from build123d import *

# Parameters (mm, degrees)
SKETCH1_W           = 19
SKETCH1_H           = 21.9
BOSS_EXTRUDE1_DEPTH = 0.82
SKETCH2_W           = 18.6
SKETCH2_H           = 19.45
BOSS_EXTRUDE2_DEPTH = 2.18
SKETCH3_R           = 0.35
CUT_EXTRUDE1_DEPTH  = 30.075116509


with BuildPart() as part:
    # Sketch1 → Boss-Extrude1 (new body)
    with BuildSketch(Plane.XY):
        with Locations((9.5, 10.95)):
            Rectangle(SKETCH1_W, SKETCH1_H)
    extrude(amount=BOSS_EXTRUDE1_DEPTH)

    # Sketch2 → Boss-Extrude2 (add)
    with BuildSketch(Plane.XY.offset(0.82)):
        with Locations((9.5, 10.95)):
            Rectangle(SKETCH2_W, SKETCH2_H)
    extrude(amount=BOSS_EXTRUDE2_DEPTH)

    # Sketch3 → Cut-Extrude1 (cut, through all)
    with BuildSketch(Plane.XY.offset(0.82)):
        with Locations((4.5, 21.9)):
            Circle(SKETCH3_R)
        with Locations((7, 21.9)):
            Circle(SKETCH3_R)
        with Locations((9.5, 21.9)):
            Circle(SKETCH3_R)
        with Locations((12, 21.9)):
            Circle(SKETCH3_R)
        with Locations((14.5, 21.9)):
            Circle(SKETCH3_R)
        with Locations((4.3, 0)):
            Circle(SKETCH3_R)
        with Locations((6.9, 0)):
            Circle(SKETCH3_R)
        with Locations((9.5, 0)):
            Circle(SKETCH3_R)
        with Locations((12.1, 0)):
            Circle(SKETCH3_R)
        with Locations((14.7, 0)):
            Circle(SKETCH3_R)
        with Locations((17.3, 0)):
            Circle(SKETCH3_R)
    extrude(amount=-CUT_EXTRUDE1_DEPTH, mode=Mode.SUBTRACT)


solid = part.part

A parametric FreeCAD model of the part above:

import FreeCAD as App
import Part
import Sketcher

doc = App.newDocument("Part")
body = doc.addObject("PartDesign::Body", "Body")

sketch1 = body.newObject("Sketcher::SketchObject", "Sketch")
sketch1.AttachmentSupport = (doc.getObject("XY_Plane"), [""])
sketch1.MapMode = "FlatFace"
sketch1.addGeometry(Part.LineSegment(App.Vector(0, 22, 0), App.Vector(0, 0, 0)), False)
sketch1.addGeometry(Part.LineSegment(App.Vector(0, 0, 0), App.Vector(19, 0, 0)), False)
sketch1.addGeometry(Part.LineSegment(App.Vector(19, 0, 0), App.Vector(19, 22, 0)), False)
sketch1.addGeometry(Part.LineSegment(App.Vector(19, 22, 0), App.Vector(0, 22, 0)), False)
sketch1.addConstraint(Sketcher.Constraint("Coincident", 0, 2, 1, 1))
sketch1.addConstraint(Sketcher.Constraint("Coincident", 1, 2, 2, 1))
sketch1.addConstraint(Sketcher.Constraint("Coincident", 2, 2, 3, 1))
sketch1.addConstraint(Sketcher.Constraint("Coincident", 3, 2, 0, 1))
sketch1.addConstraint(Sketcher.Constraint("Vertical", 0))
sketch1.addConstraint(Sketcher.Constraint("Horizontal", 1))
sketch1.addConstraint(Sketcher.Constraint("Vertical", 2))
sketch1.addConstraint(Sketcher.Constraint("Horizontal", 3))
sketch1.addConstraint(Sketcher.Constraint("Coincident", 0, 2, -1, 1))
sketch1.addConstraint(Sketcher.Constraint("DistanceX", 1, 1, 1, 2, 19.0))
sketch1.addConstraint(Sketcher.Constraint("DistanceY", 0, 2, 0, 1, 21.9))
pad1 = body.newObject("PartDesign::Pad", "Pad")
pad1.Profile = sketch1
pad1.Length = 0.82

sketch2 = body.newObject("Sketcher::SketchObject", "Sketch001")
sketch2.AttachmentSupport = (doc.getObject("XY_Plane"), [""])
sketch2.MapMode = "FlatFace"
sketch2.AttachmentOffset = App.Placement(App.Vector(0, 0, 0.82), App.Rotation())
sketch2.addGeometry(Part.LineSegment(App.Vector(0, 21, 0), App.Vector(0, 1, 0)), False)
sketch2.addGeometry(Part.LineSegment(App.Vector(0, 1, 0), App.Vector(19, 1, 0)), False)
sketch2.addGeometry(Part.LineSegment(App.Vector(19, 1, 0), App.Vector(19, 21, 0)), False)
sketch2.addGeometry(Part.LineSegment(App.Vector(19, 21, 0), App.Vector(0, 21, 0)), False)
sketch2.addConstraint(Sketcher.Constraint("Coincident", 0, 2, 1, 1))
sketch2.addConstraint(Sketcher.Constraint("Coincident", 1, 2, 2, 1))
sketch2.addConstraint(Sketcher.Constraint("Coincident", 2, 2, 3, 1))
sketch2.addConstraint(Sketcher.Constraint("Coincident", 3, 2, 0, 1))
sketch2.addConstraint(Sketcher.Constraint("Vertical", 0))
sketch2.addConstraint(Sketcher.Constraint("Horizontal", 1))
sketch2.addConstraint(Sketcher.Constraint("Vertical", 2))
sketch2.addConstraint(Sketcher.Constraint("Horizontal", 3))
sketch2.addConstraint(Sketcher.Constraint("DistanceX", 1, 1, 1, 2, 18.6))
sketch2.addConstraint(Sketcher.Constraint("DistanceY", 0, 2, 0, 1, 19.45))
sketch2.addConstraint(Sketcher.Constraint("DistanceX", -1, 1, 0, 2, 0.2))
sketch2.addConstraint(Sketcher.Constraint("DistanceY", -1, 1, 0, 2, 1.225))
pad2 = body.newObject("PartDesign::Pad", "Pad001")
pad2.Profile = sketch2
pad2.Length = 2.18

sketch3 = body.newObject("Sketcher::SketchObject", "Sketch002")
sketch3.AttachmentSupport = (doc.getObject("XY_Plane"), [""])
sketch3.MapMode = "FlatFace"
sketch3.AttachmentOffset = App.Placement(App.Vector(0, 0, 0.82), App.Rotation())
sketch3.addGeometry(Part.Circle(App.Vector(4.5, 21.9, 0), App.Vector(0, 0, 1), 0.35), False)
sketch3.addGeometry(Part.Circle(App.Vector(7, 21.9, 0), App.Vector(0, 0, 1), 0.35), False)
sketch3.addGeometry(Part.Circle(App.Vector(9.5, 21.9, 0), App.Vector(0, 0, 1), 0.35), False)
sketch3.addGeometry(Part.Circle(App.Vector(12, 21.9, 0), App.Vector(0, 0, 1), 0.35), False)
sketch3.addGeometry(Part.Circle(App.Vector(14.5, 21.9, 0), App.Vector(0, 0, 1), 0.35), False)
sketch3.addGeometry(Part.Circle(App.Vector(4.3, 0, 0), App.Vector(0, 0, 1), 0.35), False)
sketch3.addGeometry(Part.Circle(App.Vector(6.9, 0, 0), App.Vector(0, 0, 1), 0.35), False)
sketch3.addGeometry(Part.Circle(App.Vector(9.5, 0, 0), App.Vector(0, 0, 1), 0.35), False)
sketch3.addGeometry(Part.Circle(App.Vector(12.1, 0, 0), App.Vector(0, 0, 1), 0.35), False)
sketch3.addGeometry(Part.Circle(App.Vector(14.7, 0, 0), App.Vector(0, 0, 1), 0.35), False)
sketch3.addGeometry(Part.Circle(App.Vector(17.3, 0, 0), App.Vector(0, 0, 1), 0.35), False)
sketch3.addConstraint(Sketcher.Constraint("Equal", 0, 1))
sketch3.addConstraint(Sketcher.Constraint("Equal", 1, 2))
sketch3.addConstraint(Sketcher.Constraint("Equal", 2, 3))
sketch3.addConstraint(Sketcher.Constraint("Equal", 3, 4))
sketch3.addConstraint(Sketcher.Constraint("Equal", 4, 5))
sketch3.addConstraint(Sketcher.Constraint("Equal", 5, 6))
sketch3.addConstraint(Sketcher.Constraint("Equal", 6, 7))
sketch3.addConstraint(Sketcher.Constraint("Equal", 7, 8))
sketch3.addConstraint(Sketcher.Constraint("Equal", 8, 9))
sketch3.addConstraint(Sketcher.Constraint("Equal", 9, 10))
sketch3.addConstraint(Sketcher.Constraint("PointOnObject", 5, 3, -1))
sketch3.addConstraint(Sketcher.Constraint("PointOnObject", 6, 3, -1))
sketch3.addConstraint(Sketcher.Constraint("PointOnObject", 7, 3, -1))
sketch3.addConstraint(Sketcher.Constraint("PointOnObject", 8, 3, -1))
sketch3.addConstraint(Sketcher.Constraint("PointOnObject", 9, 3, -1))
sketch3.addConstraint(Sketcher.Constraint("PointOnObject", 10, 3, -1))
sketch3.addConstraint(Sketcher.Constraint("Horizontal", 0, 3, 1, 3))
sketch3.addConstraint(Sketcher.Constraint("Horizontal", 1, 3, 2, 3))
sketch3.addConstraint(Sketcher.Constraint("Horizontal", 2, 3, 3, 3))
sketch3.addConstraint(Sketcher.Constraint("Horizontal", 3, 3, 4, 3))
sketch3.addConstraint(Sketcher.Constraint("Vertical", 2, 3, 7, 3))
sketch3.addConstraint(Sketcher.Constraint("Diameter", 0, 0.7))
sketch3.addConstraint(Sketcher.Constraint("DistanceX", -1, 1, 1, 3, 7.0))
sketch3.addConstraint(Sketcher.Constraint("DistanceX", -1, 1, 3, 3, 12.0))
sketch3.addConstraint(Sketcher.Constraint("DistanceX", 0, 3, 2, 3, 5.0))
sketch3.addConstraint(Sketcher.Constraint("DistanceX", 2, 3, 4, 3, 5.0))
sketch3.addConstraint(Sketcher.Constraint("DistanceX", 5, 3, 10, 3, 13.0))
sketch3.addConstraint(Sketcher.Constraint("DistanceX", -1, 1, 0, 3, 4.5))
sketch3.addConstraint(Sketcher.Constraint("DistanceY", -1, 1, 0, 3, 21.9))
sketch3.addConstraint(Sketcher.Constraint("DistanceX", -1, 1, 5, 3, 4.3))
sketch3.addConstraint(Sketcher.Constraint("DistanceX", -1, 1, 6, 3, 6.9))
sketch3.addConstraint(Sketcher.Constraint("DistanceX", -1, 1, 8, 3, 12.1))
sketch3.addConstraint(Sketcher.Constraint("DistanceX", -1, 1, 9, 3, 14.7))
pocket1 = body.newObject("PartDesign::Pocket", "Pocket")
pocket1.Profile = sketch3
pocket1.Type = "ThroughAll"

doc.recompute()
